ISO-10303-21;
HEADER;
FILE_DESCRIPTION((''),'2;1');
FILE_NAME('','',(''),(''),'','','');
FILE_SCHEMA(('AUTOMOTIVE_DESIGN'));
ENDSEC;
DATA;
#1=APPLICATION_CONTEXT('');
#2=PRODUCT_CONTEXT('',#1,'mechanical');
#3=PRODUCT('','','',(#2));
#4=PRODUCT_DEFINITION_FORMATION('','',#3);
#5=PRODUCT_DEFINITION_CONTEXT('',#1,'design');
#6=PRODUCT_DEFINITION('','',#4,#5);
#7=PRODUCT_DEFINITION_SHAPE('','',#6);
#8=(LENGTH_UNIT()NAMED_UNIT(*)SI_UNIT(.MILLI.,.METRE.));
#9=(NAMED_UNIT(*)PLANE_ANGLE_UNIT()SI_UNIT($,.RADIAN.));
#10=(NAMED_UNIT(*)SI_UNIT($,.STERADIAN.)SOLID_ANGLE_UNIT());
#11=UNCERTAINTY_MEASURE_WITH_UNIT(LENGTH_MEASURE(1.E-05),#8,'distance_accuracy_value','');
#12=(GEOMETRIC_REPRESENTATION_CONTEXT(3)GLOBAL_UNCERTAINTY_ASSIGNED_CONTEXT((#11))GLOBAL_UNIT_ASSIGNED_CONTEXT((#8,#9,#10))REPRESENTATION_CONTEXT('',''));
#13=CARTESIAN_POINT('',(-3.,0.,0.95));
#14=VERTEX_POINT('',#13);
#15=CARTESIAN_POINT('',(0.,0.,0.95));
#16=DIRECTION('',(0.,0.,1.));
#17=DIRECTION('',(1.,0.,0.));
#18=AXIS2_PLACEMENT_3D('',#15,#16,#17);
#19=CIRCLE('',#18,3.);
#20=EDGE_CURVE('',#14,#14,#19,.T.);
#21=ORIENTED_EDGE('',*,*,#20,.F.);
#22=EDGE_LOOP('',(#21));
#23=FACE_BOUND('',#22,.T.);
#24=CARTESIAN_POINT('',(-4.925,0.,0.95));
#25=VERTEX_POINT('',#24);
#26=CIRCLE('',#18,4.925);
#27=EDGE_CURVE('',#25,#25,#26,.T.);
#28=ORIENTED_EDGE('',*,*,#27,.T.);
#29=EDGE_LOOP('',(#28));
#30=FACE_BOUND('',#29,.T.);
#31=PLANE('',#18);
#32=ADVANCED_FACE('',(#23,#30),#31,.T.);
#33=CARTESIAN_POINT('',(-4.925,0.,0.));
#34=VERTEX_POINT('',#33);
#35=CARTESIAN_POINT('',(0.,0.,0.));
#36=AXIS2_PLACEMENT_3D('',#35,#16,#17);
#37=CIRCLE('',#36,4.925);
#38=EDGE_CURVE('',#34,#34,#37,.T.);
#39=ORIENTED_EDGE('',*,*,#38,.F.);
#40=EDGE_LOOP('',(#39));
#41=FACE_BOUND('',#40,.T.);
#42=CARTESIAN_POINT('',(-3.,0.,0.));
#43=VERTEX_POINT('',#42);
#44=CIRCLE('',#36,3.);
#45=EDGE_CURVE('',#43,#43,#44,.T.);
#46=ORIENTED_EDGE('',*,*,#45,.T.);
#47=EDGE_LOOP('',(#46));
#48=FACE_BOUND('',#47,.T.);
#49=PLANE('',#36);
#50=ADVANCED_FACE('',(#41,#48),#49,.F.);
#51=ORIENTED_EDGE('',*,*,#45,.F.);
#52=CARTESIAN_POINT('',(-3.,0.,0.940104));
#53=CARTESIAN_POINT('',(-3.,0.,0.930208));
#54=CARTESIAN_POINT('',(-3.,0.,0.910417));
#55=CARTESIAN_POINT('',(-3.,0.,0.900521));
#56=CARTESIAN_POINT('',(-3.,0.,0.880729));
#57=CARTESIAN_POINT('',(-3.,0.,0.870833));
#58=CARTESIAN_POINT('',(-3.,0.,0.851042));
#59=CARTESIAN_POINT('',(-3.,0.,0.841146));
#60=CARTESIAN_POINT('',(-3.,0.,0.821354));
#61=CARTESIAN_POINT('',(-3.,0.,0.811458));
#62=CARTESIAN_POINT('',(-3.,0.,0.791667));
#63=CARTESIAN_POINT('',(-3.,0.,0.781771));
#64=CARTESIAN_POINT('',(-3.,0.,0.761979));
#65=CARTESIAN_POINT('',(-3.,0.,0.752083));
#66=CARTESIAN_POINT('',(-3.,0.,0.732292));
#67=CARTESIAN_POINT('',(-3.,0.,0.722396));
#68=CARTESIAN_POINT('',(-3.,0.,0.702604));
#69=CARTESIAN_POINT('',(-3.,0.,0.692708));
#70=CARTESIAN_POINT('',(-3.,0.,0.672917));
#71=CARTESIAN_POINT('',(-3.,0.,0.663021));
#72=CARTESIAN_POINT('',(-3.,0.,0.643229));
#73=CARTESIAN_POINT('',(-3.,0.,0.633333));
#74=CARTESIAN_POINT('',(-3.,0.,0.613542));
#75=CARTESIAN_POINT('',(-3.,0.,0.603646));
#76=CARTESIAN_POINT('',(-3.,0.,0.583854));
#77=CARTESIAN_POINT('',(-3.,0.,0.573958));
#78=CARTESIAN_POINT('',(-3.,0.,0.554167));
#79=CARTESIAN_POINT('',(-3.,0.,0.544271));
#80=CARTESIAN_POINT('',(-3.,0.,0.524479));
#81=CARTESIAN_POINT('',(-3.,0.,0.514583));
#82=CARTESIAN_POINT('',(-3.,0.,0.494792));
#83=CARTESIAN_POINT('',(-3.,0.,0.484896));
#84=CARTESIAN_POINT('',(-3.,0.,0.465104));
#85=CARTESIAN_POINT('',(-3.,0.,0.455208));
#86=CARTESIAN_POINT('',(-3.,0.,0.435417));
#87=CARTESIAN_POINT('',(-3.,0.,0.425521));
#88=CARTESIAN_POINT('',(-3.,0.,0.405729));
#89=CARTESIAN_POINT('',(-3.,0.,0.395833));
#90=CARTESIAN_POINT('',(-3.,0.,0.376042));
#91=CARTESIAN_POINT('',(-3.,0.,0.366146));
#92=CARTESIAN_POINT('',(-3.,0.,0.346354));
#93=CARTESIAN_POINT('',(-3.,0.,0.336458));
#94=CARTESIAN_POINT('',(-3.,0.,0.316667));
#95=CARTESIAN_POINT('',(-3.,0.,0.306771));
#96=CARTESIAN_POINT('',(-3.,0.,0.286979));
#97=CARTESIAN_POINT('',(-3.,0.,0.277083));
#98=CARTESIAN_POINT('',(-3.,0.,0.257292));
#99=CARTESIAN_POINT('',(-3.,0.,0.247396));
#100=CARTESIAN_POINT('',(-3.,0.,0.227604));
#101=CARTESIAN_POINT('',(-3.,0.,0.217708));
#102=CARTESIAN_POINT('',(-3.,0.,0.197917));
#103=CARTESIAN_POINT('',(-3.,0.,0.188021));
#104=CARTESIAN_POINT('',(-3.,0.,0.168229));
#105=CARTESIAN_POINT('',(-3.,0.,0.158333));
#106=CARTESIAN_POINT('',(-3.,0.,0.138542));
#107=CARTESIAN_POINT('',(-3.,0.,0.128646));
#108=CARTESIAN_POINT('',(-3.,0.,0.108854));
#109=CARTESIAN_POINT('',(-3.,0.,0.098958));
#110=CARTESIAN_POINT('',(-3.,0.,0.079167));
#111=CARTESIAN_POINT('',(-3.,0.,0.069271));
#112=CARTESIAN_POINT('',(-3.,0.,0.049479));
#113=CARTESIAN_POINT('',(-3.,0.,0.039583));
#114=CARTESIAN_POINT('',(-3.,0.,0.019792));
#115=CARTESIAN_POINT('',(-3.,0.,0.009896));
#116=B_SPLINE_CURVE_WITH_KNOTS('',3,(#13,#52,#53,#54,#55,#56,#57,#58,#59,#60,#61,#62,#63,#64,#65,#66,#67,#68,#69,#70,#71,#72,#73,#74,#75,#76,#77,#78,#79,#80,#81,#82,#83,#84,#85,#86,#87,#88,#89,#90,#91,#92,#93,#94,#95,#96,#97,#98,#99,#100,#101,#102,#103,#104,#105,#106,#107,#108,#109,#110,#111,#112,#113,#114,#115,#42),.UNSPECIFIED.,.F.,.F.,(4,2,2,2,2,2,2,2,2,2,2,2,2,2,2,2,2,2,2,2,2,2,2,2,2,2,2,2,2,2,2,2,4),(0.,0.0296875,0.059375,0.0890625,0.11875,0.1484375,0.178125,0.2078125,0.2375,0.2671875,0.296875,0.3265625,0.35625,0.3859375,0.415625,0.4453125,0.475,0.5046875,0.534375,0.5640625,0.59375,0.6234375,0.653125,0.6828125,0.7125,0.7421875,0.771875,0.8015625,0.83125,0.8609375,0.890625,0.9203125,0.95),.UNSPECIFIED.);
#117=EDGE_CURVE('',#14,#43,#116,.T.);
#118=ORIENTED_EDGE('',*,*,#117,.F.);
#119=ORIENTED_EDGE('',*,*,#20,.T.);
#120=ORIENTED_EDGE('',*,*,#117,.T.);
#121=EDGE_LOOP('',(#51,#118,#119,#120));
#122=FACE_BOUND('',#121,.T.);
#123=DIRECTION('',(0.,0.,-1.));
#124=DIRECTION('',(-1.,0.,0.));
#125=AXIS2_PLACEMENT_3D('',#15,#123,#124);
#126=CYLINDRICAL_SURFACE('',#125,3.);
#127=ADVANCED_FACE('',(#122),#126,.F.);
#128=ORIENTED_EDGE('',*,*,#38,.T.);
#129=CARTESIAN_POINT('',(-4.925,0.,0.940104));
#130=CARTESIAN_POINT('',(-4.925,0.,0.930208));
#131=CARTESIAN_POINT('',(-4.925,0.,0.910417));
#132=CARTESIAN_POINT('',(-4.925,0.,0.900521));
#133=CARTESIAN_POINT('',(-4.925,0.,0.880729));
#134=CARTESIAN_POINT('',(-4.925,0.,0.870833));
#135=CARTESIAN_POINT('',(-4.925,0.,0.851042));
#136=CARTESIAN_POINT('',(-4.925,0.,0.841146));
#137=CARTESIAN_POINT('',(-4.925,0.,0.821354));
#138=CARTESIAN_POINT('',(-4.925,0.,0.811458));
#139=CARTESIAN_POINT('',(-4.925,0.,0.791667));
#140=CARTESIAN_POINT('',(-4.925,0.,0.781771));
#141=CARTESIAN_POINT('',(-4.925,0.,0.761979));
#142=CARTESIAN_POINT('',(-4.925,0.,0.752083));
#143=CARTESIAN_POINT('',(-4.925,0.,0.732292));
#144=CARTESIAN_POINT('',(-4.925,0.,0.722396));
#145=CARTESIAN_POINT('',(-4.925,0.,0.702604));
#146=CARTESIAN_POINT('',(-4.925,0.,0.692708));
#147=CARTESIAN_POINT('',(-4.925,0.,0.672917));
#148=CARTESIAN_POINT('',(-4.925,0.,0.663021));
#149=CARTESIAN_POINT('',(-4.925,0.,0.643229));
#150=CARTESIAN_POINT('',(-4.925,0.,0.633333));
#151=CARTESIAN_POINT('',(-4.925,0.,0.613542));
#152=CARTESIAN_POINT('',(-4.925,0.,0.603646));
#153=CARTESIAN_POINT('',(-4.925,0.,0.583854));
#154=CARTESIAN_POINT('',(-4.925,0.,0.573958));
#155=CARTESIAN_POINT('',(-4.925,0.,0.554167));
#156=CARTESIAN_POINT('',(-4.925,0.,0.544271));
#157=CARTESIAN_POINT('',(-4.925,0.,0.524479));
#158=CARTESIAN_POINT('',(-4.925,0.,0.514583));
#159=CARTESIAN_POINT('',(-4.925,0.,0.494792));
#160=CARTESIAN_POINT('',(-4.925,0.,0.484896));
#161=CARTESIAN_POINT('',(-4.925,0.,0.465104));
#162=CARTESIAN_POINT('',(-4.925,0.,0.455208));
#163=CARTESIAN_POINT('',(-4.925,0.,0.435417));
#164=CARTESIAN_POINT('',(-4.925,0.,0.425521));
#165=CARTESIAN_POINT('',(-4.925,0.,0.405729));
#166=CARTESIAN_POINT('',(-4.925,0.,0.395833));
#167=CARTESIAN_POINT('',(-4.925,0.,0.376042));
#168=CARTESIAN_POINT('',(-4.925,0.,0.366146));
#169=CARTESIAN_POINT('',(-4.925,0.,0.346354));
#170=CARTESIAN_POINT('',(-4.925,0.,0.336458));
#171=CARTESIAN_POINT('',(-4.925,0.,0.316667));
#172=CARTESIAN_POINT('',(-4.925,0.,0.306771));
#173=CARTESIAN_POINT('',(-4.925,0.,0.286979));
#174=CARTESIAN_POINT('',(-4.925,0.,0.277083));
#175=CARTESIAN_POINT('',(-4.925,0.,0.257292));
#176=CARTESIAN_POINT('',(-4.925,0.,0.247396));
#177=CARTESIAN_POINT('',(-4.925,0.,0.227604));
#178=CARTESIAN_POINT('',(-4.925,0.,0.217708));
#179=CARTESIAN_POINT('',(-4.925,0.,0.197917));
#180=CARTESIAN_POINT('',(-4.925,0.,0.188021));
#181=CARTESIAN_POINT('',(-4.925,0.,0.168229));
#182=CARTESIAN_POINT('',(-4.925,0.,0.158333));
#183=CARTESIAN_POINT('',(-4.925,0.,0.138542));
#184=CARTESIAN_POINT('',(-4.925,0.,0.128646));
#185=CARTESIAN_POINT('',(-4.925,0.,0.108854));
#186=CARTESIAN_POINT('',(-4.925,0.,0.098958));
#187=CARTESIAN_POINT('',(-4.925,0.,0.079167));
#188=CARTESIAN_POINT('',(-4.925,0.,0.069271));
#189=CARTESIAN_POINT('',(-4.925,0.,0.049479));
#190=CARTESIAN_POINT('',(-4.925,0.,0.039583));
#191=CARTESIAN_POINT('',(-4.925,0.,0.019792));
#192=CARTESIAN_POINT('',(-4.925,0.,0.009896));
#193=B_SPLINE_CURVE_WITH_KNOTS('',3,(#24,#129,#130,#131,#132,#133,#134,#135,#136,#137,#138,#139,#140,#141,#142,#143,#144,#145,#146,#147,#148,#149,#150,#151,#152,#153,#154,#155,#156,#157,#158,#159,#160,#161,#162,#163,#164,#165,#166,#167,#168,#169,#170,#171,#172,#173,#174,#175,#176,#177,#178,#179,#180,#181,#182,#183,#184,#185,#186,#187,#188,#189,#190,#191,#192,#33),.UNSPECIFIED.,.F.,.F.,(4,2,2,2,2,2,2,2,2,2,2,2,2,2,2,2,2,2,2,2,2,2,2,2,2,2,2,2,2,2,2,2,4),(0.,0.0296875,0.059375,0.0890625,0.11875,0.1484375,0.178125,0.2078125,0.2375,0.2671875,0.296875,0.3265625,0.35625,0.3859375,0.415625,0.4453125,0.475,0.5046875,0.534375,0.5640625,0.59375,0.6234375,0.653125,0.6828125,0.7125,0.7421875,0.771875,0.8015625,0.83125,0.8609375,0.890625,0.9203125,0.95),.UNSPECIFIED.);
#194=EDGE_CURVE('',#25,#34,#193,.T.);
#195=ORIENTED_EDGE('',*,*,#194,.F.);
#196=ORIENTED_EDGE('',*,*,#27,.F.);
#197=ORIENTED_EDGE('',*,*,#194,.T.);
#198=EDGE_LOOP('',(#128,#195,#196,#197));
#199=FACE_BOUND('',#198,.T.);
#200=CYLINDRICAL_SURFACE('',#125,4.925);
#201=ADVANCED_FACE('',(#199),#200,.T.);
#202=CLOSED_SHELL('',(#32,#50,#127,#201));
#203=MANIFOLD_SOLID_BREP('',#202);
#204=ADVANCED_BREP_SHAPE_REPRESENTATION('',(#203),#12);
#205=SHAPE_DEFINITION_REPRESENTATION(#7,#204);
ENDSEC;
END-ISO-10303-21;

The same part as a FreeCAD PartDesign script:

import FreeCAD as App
import Part
import Sketcher

V = App.Vector
Q = App.Units.Quantity

doc = App.newDocument("Part")
body = doc.addObject("PartDesign::Body", "Body")

# Sketch on XY plane
sketch1 = body.newObject("Sketcher::SketchObject", "Sketch")
sketch1.AttachmentSupport = (doc.getObject("XY_Plane"), [""])
sketch1.MapMode = "FlatFace"
sketch1.addGeometry(Part.Circle(V(0, 0, 0), V(0, 0, 1), 4.9), False)
sketch1.addGeometry(Part.Circle(V(0, 0, 0), V(0, 0, 1), 3), False)
sketch1.addConstraint(Sketcher.Constraint("Coincident", 0, 3, -1, 1))
sketch1.addConstraint(Sketcher.Constraint("Coincident", 1, 3, -1, 1))
sketch1.addConstraint(Sketcher.Constraint("Diameter", 1, Q("6 mm")))
sketch1.addConstraint(Sketcher.Constraint("Diameter", 0, Q("9.85 mm")))
pad1 = body.newObject("PartDesign::Pad", "Pad")
pad1.Profile = sketch1
pad1.Length = 0.95

doc.recompute()
